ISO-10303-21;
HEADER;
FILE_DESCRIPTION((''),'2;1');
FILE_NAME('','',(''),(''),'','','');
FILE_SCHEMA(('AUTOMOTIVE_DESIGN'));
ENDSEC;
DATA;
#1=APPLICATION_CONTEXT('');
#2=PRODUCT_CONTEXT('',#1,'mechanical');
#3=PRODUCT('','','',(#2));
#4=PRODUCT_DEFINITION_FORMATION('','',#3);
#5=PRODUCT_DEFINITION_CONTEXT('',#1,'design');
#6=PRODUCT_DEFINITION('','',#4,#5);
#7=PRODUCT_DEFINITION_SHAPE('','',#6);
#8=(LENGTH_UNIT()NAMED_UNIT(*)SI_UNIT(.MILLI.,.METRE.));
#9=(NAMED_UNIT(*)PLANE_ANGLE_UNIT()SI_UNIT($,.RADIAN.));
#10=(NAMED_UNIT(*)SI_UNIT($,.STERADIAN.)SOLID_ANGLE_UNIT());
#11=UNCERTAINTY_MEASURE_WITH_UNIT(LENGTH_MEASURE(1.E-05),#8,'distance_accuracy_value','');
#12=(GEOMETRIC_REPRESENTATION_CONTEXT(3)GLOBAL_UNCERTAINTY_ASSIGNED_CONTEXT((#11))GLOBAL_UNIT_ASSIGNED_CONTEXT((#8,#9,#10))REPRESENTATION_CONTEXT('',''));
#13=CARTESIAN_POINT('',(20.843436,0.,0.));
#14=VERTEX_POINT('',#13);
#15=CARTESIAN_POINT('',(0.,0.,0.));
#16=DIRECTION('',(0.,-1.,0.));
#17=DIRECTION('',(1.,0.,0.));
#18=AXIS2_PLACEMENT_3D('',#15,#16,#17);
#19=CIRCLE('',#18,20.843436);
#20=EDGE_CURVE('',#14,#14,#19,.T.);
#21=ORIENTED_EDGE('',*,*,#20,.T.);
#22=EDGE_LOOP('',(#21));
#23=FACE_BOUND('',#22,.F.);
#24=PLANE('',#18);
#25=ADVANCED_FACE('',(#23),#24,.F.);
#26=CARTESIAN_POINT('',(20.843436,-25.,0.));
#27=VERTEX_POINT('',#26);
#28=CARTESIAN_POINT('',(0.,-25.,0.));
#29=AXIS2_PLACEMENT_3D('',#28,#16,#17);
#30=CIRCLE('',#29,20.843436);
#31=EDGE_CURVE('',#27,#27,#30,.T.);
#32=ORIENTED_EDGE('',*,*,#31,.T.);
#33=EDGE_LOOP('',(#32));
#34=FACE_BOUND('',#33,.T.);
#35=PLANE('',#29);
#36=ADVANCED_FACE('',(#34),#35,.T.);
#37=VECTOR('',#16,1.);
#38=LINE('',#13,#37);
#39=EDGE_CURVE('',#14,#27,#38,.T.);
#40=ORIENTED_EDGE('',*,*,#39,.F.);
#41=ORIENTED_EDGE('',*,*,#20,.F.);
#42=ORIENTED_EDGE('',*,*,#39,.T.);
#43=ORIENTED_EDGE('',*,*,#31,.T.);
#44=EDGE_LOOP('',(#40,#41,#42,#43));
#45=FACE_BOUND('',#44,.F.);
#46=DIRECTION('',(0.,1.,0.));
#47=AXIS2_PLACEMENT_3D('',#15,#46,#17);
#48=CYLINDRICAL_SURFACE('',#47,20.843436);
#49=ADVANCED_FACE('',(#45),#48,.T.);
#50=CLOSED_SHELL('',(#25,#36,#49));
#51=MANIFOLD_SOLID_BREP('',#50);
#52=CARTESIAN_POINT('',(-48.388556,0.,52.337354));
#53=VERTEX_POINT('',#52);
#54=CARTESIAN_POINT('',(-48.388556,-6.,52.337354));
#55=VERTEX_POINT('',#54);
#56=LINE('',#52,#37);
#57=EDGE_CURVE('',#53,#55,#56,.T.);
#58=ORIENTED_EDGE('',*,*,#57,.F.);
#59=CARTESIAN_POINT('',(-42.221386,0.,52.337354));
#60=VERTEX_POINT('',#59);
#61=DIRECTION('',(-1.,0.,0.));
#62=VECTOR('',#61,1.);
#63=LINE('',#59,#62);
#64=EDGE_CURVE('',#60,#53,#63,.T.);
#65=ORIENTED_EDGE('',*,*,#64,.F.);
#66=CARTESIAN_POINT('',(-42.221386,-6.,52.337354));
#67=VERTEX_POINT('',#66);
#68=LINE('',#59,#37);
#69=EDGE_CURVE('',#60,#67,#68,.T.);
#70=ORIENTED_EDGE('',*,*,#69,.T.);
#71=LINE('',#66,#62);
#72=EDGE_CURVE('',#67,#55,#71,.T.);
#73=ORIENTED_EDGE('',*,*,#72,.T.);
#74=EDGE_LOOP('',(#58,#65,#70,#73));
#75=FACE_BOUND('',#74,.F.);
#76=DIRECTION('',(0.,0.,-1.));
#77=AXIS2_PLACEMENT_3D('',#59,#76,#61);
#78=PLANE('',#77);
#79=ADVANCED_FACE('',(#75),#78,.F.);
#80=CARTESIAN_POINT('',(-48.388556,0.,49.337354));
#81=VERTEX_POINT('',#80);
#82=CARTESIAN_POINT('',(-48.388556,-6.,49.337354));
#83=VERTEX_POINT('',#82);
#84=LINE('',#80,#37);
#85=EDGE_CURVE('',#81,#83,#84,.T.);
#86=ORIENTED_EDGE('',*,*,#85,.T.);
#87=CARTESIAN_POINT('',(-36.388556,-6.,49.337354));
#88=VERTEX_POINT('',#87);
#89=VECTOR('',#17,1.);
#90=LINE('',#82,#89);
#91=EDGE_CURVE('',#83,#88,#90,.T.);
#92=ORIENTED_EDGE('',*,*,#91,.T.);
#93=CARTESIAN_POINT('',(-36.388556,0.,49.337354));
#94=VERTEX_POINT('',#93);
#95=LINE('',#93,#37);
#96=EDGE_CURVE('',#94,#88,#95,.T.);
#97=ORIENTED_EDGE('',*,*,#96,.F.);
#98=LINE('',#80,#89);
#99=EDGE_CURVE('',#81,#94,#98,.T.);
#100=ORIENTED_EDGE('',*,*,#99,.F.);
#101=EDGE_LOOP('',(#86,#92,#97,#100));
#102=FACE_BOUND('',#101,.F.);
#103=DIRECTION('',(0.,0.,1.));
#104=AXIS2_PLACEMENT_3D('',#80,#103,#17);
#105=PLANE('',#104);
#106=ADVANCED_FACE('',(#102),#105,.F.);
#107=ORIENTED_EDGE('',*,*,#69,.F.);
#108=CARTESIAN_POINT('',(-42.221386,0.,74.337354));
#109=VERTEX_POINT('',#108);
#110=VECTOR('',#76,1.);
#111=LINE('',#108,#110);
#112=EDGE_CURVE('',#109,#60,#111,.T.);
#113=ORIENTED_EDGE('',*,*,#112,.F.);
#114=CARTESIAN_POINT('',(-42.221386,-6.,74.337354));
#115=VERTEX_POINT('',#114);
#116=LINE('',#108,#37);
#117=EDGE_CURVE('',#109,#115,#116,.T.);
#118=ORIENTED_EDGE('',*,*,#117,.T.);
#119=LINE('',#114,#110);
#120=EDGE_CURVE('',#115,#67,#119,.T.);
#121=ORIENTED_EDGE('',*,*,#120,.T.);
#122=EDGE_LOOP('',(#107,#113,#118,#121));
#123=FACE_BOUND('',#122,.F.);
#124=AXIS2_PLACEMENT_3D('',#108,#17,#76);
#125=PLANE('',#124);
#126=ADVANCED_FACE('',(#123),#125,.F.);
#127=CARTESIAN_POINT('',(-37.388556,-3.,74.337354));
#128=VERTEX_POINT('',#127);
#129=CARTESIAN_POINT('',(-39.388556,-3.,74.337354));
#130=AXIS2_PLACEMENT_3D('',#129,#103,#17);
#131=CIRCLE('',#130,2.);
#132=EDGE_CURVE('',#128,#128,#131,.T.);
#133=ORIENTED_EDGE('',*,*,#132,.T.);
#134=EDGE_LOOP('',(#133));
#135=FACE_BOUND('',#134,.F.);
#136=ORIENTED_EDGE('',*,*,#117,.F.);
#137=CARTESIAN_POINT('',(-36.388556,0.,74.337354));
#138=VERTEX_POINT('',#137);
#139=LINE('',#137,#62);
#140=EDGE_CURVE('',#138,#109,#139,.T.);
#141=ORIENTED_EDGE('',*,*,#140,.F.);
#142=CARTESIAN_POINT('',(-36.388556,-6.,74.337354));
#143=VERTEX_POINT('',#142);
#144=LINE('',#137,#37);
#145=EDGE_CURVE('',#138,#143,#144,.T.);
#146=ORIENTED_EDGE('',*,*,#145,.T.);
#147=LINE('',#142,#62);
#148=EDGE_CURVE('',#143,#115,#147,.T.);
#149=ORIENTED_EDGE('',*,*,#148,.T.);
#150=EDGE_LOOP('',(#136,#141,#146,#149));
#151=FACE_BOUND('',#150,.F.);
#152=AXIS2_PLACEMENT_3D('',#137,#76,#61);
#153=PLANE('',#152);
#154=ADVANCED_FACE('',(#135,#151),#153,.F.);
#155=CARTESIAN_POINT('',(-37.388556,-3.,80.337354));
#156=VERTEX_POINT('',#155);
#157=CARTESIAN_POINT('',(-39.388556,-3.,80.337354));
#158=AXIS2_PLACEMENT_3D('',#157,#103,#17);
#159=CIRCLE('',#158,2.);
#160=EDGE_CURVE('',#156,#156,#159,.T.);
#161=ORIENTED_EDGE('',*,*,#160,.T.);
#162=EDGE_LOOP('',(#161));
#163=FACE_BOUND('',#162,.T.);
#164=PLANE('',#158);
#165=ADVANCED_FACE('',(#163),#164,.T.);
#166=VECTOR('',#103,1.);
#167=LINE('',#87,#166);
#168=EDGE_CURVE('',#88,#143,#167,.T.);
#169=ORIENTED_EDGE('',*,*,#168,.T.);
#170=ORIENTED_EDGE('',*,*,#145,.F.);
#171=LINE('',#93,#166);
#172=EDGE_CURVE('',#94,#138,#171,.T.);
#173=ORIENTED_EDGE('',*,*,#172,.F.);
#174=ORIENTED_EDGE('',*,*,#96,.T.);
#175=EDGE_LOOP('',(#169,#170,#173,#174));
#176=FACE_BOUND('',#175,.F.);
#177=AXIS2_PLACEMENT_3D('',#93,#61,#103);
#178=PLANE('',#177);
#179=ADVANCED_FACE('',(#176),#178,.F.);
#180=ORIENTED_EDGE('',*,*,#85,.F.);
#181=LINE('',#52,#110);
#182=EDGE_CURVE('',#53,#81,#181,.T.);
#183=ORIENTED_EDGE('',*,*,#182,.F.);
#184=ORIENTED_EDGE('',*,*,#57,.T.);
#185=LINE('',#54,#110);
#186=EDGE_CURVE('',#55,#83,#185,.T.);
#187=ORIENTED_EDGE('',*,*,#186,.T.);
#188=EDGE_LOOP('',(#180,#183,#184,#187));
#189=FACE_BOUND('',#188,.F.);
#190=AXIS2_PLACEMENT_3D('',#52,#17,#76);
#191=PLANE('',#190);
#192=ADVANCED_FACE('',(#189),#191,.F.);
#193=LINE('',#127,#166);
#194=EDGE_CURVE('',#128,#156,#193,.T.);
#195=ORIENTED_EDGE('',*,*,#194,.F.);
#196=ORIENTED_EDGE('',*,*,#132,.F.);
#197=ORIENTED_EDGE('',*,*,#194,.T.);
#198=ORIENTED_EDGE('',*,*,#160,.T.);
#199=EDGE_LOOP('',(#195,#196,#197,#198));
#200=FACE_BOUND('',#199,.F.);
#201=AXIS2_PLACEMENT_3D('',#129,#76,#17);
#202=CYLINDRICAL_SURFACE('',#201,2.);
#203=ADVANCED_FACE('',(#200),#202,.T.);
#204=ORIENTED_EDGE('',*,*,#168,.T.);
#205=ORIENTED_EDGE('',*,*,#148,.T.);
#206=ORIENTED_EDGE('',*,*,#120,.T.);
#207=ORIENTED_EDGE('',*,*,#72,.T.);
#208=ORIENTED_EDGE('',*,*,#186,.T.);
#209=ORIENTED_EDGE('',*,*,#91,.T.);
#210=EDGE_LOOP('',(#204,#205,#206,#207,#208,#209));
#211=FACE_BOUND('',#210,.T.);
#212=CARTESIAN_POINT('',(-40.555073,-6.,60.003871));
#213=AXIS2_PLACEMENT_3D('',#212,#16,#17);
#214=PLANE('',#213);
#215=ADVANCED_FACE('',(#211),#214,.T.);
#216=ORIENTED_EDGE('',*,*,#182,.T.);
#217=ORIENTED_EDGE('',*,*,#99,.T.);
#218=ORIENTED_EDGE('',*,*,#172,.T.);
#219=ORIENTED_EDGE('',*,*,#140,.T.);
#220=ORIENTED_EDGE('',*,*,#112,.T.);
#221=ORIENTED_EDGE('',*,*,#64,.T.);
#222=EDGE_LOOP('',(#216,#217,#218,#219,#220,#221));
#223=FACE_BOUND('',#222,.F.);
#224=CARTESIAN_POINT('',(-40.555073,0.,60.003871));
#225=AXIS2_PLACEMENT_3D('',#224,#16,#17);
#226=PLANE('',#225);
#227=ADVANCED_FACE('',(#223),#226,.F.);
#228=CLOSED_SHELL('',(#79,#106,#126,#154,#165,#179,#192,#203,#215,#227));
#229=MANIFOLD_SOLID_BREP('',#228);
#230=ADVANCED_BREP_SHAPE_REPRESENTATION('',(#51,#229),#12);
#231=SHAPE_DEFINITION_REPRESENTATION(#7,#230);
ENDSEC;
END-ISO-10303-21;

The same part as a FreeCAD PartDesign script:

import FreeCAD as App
import Part
import Sketcher
Q = App.Units.Quantity


def add_polygon(sketch, points):
    """Adds a closed chain of lines whose ends are joined by coincident constraints."""
    first, n = sketch.GeometryCount, len(points)
    for a, b in zip(points, points[1:] + points[:1]):
        sketch.addGeometry(Part.LineSegment(App.Vector(*a, 0), App.Vector(*b, 0)), False)
    for i in range(n):
        sketch.addConstraint(Sketcher.Constraint("Coincident", first + i, 2, first + (i + 1) % n, 1))

doc = App.newDocument("Part")
body = doc.addObject("PartDesign::Body", "Body")

# Sketch on XZ plane
sketch1 = body.newObject("Sketcher::SketchObject", "Sketch")
sketch1.AttachmentSupport = (doc.getObject("XZ_Plane"), [""])
sketch1.MapMode = "FlatFace"
sketch1.addGeometry(Part.Circle(App.Vector(0, 0, 0), App.Vector(0, 0, 1), 21), False)
sketch1.addConstraint([
    Sketcher.Constraint("Coincident", 0, 3, -1, 1),
    Sketcher.Constraint("Diameter", 0, Q("41.686872 mm")),
])
pad1 = body.newObject("PartDesign::Pad", "Pad")
pad1.Profile = sketch1
pad1.Length = 25
body2 = doc.addObject("PartDesign::Body", "Body001")

# Sketch on XZ plane
sketch2 = body2.newObject("Sketcher::SketchObject", "Sketch001")
sketch2.AttachmentSupport = (doc.getObject("XZ_Plane001"), [""])
sketch2.MapMode = "FlatFace"
add_polygon(sketch2, [(-36.4, 49.3), (-36.4, 74.3), (-42.2, 74.3), (-42.2, 52.3), (-48.4, 52.3), (-48.4, 49.3)])  # lines 0-5
sketch2.addConstraint([
    Sketcher.Constraint("Vertical", 0),
    Sketcher.Constraint("Horizontal", 1),
    Sketcher.Constraint("Vertical", 2),
    Sketcher.Constraint("Horizontal", 3),
    Sketcher.Constraint("Vertical", 4),
    Sketcher.Constraint("Horizontal", 5),
    Sketcher.Constraint("DistanceX", 5, 1, 5, 2, Q("12 mm")),
    Sketcher.Constraint("DistanceY", 0, 1, 0, 2, Q("25 mm")),
    Sketcher.Constraint("DistanceY", 2, 2, 2, 1, Q("22 mm")),
    Sketcher.Constraint("DistanceX", 1, 2, 1, 1, Q("5.83283 mm")),
    Sketcher.Constraint("DistanceX", 0, 2, -1, 1, Q("36.388556 mm")),
    Sketcher.Constraint("DistanceY", -1, 1, 0, 2, Q("74.337354 mm")),
])
pad2 = body2.newObject("PartDesign::Pad", "Pad001")
pad2.Profile = sketch2
pad2.Length = 6

# Sketch on XY plane
sketch3 = body2.newObject("Sketcher::SketchObject", "Sketch002")
sketch3.AttachmentSupport = (doc.getObject("XY_Plane001"), [""])
sketch3.MapMode = "FlatFace"
sketch3.AttachmentOffset = App.Placement(App.Vector(0, 0, 74.337354), App.Rotation())
sketch3.addGeometry(Part.Circle(App.Vector(-39.4, -3, 0), App.Vector(0, 0, 1), 2), False)
sketch3.addConstraint([
    Sketcher.Constraint("Diameter", 0, Q("4 mm")),
    Sketcher.Constraint("DistanceY", 0, 3, -1, 1, Q("3 mm")),
    Sketcher.Constraint("DistanceX", 0, 3, -1, 1, Q("39.388556 mm")),
])
pad3 = body2.newObject("PartDesign::Pad", "Pad002")
pad3.Profile = sketch3
pad3.Length = 6

doc.recompute()
